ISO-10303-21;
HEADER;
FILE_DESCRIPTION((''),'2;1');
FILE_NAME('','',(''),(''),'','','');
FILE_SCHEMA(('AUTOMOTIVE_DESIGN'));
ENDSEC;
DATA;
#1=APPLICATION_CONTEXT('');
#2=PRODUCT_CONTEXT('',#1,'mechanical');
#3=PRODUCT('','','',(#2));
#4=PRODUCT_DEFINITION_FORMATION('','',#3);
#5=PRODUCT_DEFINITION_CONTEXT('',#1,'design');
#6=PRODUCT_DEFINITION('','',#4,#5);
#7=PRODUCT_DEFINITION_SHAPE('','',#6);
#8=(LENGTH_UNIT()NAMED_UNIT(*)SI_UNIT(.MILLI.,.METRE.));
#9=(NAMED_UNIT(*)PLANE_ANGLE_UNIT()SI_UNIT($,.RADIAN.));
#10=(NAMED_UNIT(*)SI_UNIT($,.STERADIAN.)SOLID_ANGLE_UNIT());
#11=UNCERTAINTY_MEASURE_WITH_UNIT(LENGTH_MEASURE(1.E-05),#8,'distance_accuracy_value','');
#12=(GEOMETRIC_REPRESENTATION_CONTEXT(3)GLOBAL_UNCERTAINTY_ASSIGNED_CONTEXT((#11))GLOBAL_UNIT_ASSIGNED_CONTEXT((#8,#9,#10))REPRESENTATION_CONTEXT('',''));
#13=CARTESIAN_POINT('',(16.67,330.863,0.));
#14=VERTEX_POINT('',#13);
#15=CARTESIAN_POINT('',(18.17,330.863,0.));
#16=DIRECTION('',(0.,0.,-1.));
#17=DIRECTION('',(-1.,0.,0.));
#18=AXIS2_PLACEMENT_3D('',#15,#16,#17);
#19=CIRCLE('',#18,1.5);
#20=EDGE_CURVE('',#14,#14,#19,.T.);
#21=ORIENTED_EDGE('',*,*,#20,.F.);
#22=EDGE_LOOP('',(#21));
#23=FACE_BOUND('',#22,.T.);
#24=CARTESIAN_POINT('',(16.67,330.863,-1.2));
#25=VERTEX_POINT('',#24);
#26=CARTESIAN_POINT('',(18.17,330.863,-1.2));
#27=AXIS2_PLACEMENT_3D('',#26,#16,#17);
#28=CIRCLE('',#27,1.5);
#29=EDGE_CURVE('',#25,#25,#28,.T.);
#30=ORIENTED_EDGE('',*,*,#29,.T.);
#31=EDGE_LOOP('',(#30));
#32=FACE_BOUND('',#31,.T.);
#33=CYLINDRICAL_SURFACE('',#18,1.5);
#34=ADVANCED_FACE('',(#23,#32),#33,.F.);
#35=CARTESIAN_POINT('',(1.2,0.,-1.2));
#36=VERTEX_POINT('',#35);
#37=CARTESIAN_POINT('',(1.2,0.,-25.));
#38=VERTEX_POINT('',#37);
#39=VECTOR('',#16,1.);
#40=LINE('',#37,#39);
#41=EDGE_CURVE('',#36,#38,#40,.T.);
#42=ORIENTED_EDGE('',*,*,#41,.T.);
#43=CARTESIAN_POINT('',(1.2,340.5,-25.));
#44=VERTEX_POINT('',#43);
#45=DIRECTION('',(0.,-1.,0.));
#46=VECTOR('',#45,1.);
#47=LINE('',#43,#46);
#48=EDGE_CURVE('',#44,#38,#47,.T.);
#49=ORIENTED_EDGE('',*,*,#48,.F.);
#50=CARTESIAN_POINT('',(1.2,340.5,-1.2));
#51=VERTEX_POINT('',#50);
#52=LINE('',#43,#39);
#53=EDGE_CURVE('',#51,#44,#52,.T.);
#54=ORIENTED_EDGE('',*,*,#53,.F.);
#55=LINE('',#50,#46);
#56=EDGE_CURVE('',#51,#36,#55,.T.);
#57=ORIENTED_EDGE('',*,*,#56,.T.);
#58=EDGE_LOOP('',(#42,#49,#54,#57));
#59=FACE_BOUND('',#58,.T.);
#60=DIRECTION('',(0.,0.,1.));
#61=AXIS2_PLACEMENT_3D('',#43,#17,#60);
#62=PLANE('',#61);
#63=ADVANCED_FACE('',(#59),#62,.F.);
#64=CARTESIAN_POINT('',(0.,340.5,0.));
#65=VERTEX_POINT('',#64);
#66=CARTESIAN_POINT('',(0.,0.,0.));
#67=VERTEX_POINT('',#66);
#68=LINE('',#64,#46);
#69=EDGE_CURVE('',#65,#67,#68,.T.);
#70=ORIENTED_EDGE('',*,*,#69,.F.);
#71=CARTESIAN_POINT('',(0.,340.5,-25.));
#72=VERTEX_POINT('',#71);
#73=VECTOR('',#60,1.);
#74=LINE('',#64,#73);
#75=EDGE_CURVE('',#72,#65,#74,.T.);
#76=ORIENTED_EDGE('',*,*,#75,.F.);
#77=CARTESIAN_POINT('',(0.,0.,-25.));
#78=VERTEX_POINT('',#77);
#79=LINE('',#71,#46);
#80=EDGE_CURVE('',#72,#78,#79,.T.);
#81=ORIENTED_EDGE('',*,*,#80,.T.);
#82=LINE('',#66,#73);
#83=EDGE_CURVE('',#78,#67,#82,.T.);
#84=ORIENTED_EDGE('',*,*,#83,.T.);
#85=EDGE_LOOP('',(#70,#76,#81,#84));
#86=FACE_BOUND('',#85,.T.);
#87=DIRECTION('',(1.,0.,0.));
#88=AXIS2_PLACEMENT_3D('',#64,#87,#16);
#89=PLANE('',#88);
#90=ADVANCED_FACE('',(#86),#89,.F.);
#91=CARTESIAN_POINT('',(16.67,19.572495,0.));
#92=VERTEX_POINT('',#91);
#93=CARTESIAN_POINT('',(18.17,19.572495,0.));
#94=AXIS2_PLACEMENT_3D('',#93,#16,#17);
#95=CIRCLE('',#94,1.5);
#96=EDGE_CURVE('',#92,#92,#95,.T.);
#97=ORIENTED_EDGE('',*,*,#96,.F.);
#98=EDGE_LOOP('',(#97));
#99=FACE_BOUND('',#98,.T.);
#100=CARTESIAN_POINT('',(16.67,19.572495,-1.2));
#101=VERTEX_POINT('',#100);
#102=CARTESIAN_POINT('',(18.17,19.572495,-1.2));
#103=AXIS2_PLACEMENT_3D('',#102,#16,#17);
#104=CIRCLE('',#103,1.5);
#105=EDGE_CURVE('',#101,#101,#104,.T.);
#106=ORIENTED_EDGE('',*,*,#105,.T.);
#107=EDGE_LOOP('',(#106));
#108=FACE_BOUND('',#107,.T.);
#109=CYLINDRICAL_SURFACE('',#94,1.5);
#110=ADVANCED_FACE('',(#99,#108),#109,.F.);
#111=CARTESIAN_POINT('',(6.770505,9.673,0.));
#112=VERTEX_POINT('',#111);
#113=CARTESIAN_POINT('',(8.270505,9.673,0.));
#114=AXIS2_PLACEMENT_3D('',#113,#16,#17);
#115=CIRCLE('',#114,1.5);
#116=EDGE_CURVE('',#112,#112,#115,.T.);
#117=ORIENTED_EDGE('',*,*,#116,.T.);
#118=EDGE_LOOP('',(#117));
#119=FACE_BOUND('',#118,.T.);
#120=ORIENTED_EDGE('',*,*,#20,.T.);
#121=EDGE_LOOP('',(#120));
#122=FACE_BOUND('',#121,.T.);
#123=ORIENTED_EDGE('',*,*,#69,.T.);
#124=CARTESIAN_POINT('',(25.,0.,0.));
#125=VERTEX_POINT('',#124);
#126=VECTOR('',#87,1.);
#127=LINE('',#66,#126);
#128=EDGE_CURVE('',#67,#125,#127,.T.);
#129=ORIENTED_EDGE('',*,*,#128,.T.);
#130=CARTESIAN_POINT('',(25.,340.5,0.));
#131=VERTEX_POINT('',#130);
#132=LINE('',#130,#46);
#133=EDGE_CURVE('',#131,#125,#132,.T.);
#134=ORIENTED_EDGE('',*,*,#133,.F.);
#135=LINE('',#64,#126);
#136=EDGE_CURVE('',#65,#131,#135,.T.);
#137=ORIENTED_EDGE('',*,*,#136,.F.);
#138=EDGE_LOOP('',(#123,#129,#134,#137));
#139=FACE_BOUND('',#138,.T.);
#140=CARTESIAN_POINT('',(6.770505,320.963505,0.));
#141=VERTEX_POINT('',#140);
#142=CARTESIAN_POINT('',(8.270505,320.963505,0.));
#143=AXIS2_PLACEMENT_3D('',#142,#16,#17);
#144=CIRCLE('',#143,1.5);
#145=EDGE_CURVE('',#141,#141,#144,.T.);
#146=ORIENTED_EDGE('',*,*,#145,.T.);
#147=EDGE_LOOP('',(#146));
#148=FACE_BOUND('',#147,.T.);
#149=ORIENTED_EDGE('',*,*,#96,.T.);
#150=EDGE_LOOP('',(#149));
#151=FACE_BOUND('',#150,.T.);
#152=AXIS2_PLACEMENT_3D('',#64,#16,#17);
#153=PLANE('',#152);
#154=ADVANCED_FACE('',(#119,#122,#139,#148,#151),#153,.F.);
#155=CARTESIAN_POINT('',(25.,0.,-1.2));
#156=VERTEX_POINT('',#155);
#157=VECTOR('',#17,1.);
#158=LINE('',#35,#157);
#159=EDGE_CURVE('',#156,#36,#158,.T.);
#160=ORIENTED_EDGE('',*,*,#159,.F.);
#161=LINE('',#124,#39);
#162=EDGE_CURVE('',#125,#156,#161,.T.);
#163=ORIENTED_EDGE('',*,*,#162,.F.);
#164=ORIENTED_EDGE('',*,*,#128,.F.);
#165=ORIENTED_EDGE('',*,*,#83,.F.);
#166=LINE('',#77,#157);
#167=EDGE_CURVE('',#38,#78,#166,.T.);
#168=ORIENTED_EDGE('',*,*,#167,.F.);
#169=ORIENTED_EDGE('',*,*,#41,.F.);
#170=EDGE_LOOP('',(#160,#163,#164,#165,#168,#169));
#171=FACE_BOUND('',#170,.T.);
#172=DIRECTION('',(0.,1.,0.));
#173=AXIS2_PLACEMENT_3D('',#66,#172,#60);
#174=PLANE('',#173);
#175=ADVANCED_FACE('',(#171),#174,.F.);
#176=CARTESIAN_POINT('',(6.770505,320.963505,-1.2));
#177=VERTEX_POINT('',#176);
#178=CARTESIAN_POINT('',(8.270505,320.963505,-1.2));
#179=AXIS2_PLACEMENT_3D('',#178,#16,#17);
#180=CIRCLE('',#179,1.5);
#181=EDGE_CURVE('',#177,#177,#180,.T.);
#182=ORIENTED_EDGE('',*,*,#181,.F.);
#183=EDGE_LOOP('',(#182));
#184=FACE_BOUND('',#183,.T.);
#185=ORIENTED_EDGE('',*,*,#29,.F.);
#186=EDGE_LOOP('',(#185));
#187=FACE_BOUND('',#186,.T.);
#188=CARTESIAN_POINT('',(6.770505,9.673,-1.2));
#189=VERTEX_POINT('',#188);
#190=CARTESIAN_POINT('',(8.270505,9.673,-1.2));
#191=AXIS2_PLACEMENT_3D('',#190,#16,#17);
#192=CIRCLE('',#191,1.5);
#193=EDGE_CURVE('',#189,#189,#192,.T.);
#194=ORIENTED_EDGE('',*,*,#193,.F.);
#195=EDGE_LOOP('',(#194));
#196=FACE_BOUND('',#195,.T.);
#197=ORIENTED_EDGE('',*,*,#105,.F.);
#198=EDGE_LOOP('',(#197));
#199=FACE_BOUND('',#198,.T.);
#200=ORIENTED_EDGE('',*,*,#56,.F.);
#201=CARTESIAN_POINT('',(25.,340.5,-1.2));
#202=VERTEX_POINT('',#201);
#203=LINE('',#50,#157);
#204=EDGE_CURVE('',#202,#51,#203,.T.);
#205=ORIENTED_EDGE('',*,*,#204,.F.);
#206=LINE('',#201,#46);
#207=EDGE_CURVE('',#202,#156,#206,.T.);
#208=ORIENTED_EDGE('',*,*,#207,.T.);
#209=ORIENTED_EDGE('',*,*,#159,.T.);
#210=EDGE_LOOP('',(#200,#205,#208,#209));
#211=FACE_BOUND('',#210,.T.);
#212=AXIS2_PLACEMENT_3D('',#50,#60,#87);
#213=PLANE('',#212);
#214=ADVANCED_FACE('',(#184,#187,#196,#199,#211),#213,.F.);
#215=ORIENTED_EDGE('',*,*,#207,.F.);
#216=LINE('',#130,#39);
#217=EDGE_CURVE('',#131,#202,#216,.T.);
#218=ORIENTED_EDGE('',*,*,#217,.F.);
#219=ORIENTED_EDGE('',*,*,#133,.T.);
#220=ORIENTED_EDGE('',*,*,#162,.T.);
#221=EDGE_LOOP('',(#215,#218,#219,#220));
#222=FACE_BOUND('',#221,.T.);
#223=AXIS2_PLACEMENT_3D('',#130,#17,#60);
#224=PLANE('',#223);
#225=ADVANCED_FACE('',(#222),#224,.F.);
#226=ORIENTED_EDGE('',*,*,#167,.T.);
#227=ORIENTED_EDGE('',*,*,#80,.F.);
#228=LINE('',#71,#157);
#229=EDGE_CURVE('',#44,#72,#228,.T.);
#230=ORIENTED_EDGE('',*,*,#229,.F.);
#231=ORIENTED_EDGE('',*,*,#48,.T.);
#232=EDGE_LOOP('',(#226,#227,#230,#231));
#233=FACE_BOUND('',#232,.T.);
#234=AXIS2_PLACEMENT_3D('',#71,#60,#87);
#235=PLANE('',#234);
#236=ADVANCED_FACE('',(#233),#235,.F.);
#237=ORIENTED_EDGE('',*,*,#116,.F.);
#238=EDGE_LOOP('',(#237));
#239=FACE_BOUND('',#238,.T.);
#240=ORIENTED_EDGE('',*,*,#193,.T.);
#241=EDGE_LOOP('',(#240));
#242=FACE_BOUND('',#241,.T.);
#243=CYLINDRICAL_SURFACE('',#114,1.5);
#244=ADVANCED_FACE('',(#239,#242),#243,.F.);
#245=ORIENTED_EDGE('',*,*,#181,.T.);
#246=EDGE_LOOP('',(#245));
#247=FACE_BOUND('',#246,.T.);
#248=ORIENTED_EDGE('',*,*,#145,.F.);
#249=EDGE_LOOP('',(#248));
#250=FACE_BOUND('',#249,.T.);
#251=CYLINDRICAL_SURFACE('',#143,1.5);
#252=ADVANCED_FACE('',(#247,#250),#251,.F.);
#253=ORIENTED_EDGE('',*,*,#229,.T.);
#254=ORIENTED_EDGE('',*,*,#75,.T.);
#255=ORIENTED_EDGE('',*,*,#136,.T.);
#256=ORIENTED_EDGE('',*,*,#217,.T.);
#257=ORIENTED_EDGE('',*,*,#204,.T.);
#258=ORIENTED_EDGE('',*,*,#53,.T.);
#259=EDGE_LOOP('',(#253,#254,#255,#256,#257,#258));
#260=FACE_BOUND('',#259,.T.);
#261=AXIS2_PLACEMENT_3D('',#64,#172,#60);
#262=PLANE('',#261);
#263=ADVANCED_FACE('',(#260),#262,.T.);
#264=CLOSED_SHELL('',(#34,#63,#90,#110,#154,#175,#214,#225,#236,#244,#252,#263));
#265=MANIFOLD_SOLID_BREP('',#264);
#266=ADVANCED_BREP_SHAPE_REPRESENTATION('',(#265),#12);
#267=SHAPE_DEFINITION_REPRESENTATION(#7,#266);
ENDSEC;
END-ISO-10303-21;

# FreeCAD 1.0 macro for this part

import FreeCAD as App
import Part
import Sketcher

V = App.Vector
Q = App.Units.Quantity


def add_polygon(sketch, points):
    """Adds a closed chain of lines whose ends are joined by coincident constraints."""
    first, n = sketch.GeometryCount, len(points)
    for a, b in zip(points, points[1:] + points[:1]):
        sketch.addGeometry(Part.LineSegment(App.Vector(*a, 0), App.Vector(*b, 0)), False)
    for i in range(n):
        sketch.addConstraint(Sketcher.Constraint("Coincident", first + i, 2, first + (i + 1) % n, 1))

doc = App.newDocument("Part")
params = doc.addObject("Spreadsheet::Sheet", "Params")
for row, (alias, value) in enumerate([
    ("sketch1_width", "25 mm"),
    ("sketch1_width2", "23.8 mm"),
    ("pad1_length", "340.5 mm"),
    ("sketch2_diameter", "3 mm"),
], start=1):
    params.set(f"A{row}", alias)
    params.set(f"B{row}", "=" + value)
    params.setAlias(f"B{row}", alias)

body = doc.addObject("PartDesign::Body", "Body")

# Sketch on XZ plane
sketch1 = doc.addObject("Sketcher::SketchObject", "Sketch")
body.addObject(sketch1)
sketch1.AttachmentSupport = (doc.XZ_Plane, [""])
sketch1.MapMode = "FlatFace"
add_polygon(sketch1, [(0, -25), (0, 0), (25, 0), (25, -1.2), (1.2, -1.2), (1.2, -25)])  # lines 0-5
sketch1.addConstraint([
    Sketcher.Constraint("Vertical", 0),
    Sketcher.Constraint("Horizontal", 1),
    Sketcher.Constraint("Vertical", 2),
    Sketcher.Constraint("Horizontal", 3),
    Sketcher.Constraint("Vertical", 4),
    Sketcher.Constraint("Horizontal", 5),
    Sketcher.Constraint("Coincident", 0, 2, -1, 1),
    Sketcher.Constraint("Equal", 1, 0),
    Sketcher.Constraint("Equal", 5, 2),
    Sketcher.Constraint("DistanceX", 1, 1, 1, 2, Q("25 mm")),
    Sketcher.Constraint("DistanceX", 3, 2, 3, 1, Q("23.8 mm")),
])
sketch1.setExpression("Constraints[15]", "Params.sketch1_width")
sketch1.setExpression("Constraints[16]", "Params.sketch1_width2")
pad1 = doc.addObject("PartDesign::Pad", "Pad")
body.addObject(pad1)
pad1.Profile = sketch1
pad1.setExpression("Length", "Params.pad1_length")
pad1.Reversed = True

# Sketch on XY plane
sketch2 = doc.addObject("Sketcher::SketchObject", "Sketch001")
body.addObject(sketch2)
sketch2.AttachmentSupport = (doc.XY_Plane, [""])
sketch2.MapMode = "FlatFace"
sketch2.AttachmentOffset = App.Placement(V(0, 0, -1.2), App.Rotation())
sketch2.addGeometry([
    Part.Circle(V(18.17, 330.863, 0), V(0, 0, 1), 1.5),
    Part.Circle(V(8.270505, 320.963505, 0), V(0, 0, 1), 1.5),
    Part.Circle(V(18.17, 19.572495, 0), V(0, 0, 1), 1.5),
    Part.Circle(V(8.270505, 9.673, 0), V(0, 0, 1), 1.5),
], False)
sketch2.addConstraint([
    Sketcher.Constraint("Equal", 0, 1),
    Sketcher.Constraint("Equal", 1, 2),
    Sketcher.Constraint("Equal", 2, 3),
    Sketcher.Constraint("Vertical", 0, 3, 2, 3),
    Sketcher.Constraint("Vertical", 1, 3, 3, 3),
    Sketcher.Constraint("Diameter", 0, Q("3 mm")),
    Sketcher.Constraint("DistanceX", -1, 1, 0, 3, Q("18.17 mm")),
    Sketcher.Constraint("DistanceY", 3, 3, 0, 3, Q("321.19 mm")),
    Sketcher.Constraint("DistanceY", -1, 1, 0, 3, Q("330.863 mm")),
    Sketcher.Constraint("DistanceY", 2, 3, 1, 3, Q("301.39101 mm")),
    Sketcher.Constraint("DistanceX", -1, 1, 1, 3, Q("8.270505 mm")),
    Sketcher.Constraint("DistanceY", -1, 1, 1, 3, Q("320.963505 mm")),
])
sketch2.setExpression("Constraints[5]", "Params.sketch2_diameter")
pocket1 = doc.addObject("PartDesign::Pocket", "Pocket")
body.addObject(pocket1)
pocket1.Profile = sketch2
pocket1.Type = "ThroughAll"
pocket1.Reversed = True

doc.recompute()
